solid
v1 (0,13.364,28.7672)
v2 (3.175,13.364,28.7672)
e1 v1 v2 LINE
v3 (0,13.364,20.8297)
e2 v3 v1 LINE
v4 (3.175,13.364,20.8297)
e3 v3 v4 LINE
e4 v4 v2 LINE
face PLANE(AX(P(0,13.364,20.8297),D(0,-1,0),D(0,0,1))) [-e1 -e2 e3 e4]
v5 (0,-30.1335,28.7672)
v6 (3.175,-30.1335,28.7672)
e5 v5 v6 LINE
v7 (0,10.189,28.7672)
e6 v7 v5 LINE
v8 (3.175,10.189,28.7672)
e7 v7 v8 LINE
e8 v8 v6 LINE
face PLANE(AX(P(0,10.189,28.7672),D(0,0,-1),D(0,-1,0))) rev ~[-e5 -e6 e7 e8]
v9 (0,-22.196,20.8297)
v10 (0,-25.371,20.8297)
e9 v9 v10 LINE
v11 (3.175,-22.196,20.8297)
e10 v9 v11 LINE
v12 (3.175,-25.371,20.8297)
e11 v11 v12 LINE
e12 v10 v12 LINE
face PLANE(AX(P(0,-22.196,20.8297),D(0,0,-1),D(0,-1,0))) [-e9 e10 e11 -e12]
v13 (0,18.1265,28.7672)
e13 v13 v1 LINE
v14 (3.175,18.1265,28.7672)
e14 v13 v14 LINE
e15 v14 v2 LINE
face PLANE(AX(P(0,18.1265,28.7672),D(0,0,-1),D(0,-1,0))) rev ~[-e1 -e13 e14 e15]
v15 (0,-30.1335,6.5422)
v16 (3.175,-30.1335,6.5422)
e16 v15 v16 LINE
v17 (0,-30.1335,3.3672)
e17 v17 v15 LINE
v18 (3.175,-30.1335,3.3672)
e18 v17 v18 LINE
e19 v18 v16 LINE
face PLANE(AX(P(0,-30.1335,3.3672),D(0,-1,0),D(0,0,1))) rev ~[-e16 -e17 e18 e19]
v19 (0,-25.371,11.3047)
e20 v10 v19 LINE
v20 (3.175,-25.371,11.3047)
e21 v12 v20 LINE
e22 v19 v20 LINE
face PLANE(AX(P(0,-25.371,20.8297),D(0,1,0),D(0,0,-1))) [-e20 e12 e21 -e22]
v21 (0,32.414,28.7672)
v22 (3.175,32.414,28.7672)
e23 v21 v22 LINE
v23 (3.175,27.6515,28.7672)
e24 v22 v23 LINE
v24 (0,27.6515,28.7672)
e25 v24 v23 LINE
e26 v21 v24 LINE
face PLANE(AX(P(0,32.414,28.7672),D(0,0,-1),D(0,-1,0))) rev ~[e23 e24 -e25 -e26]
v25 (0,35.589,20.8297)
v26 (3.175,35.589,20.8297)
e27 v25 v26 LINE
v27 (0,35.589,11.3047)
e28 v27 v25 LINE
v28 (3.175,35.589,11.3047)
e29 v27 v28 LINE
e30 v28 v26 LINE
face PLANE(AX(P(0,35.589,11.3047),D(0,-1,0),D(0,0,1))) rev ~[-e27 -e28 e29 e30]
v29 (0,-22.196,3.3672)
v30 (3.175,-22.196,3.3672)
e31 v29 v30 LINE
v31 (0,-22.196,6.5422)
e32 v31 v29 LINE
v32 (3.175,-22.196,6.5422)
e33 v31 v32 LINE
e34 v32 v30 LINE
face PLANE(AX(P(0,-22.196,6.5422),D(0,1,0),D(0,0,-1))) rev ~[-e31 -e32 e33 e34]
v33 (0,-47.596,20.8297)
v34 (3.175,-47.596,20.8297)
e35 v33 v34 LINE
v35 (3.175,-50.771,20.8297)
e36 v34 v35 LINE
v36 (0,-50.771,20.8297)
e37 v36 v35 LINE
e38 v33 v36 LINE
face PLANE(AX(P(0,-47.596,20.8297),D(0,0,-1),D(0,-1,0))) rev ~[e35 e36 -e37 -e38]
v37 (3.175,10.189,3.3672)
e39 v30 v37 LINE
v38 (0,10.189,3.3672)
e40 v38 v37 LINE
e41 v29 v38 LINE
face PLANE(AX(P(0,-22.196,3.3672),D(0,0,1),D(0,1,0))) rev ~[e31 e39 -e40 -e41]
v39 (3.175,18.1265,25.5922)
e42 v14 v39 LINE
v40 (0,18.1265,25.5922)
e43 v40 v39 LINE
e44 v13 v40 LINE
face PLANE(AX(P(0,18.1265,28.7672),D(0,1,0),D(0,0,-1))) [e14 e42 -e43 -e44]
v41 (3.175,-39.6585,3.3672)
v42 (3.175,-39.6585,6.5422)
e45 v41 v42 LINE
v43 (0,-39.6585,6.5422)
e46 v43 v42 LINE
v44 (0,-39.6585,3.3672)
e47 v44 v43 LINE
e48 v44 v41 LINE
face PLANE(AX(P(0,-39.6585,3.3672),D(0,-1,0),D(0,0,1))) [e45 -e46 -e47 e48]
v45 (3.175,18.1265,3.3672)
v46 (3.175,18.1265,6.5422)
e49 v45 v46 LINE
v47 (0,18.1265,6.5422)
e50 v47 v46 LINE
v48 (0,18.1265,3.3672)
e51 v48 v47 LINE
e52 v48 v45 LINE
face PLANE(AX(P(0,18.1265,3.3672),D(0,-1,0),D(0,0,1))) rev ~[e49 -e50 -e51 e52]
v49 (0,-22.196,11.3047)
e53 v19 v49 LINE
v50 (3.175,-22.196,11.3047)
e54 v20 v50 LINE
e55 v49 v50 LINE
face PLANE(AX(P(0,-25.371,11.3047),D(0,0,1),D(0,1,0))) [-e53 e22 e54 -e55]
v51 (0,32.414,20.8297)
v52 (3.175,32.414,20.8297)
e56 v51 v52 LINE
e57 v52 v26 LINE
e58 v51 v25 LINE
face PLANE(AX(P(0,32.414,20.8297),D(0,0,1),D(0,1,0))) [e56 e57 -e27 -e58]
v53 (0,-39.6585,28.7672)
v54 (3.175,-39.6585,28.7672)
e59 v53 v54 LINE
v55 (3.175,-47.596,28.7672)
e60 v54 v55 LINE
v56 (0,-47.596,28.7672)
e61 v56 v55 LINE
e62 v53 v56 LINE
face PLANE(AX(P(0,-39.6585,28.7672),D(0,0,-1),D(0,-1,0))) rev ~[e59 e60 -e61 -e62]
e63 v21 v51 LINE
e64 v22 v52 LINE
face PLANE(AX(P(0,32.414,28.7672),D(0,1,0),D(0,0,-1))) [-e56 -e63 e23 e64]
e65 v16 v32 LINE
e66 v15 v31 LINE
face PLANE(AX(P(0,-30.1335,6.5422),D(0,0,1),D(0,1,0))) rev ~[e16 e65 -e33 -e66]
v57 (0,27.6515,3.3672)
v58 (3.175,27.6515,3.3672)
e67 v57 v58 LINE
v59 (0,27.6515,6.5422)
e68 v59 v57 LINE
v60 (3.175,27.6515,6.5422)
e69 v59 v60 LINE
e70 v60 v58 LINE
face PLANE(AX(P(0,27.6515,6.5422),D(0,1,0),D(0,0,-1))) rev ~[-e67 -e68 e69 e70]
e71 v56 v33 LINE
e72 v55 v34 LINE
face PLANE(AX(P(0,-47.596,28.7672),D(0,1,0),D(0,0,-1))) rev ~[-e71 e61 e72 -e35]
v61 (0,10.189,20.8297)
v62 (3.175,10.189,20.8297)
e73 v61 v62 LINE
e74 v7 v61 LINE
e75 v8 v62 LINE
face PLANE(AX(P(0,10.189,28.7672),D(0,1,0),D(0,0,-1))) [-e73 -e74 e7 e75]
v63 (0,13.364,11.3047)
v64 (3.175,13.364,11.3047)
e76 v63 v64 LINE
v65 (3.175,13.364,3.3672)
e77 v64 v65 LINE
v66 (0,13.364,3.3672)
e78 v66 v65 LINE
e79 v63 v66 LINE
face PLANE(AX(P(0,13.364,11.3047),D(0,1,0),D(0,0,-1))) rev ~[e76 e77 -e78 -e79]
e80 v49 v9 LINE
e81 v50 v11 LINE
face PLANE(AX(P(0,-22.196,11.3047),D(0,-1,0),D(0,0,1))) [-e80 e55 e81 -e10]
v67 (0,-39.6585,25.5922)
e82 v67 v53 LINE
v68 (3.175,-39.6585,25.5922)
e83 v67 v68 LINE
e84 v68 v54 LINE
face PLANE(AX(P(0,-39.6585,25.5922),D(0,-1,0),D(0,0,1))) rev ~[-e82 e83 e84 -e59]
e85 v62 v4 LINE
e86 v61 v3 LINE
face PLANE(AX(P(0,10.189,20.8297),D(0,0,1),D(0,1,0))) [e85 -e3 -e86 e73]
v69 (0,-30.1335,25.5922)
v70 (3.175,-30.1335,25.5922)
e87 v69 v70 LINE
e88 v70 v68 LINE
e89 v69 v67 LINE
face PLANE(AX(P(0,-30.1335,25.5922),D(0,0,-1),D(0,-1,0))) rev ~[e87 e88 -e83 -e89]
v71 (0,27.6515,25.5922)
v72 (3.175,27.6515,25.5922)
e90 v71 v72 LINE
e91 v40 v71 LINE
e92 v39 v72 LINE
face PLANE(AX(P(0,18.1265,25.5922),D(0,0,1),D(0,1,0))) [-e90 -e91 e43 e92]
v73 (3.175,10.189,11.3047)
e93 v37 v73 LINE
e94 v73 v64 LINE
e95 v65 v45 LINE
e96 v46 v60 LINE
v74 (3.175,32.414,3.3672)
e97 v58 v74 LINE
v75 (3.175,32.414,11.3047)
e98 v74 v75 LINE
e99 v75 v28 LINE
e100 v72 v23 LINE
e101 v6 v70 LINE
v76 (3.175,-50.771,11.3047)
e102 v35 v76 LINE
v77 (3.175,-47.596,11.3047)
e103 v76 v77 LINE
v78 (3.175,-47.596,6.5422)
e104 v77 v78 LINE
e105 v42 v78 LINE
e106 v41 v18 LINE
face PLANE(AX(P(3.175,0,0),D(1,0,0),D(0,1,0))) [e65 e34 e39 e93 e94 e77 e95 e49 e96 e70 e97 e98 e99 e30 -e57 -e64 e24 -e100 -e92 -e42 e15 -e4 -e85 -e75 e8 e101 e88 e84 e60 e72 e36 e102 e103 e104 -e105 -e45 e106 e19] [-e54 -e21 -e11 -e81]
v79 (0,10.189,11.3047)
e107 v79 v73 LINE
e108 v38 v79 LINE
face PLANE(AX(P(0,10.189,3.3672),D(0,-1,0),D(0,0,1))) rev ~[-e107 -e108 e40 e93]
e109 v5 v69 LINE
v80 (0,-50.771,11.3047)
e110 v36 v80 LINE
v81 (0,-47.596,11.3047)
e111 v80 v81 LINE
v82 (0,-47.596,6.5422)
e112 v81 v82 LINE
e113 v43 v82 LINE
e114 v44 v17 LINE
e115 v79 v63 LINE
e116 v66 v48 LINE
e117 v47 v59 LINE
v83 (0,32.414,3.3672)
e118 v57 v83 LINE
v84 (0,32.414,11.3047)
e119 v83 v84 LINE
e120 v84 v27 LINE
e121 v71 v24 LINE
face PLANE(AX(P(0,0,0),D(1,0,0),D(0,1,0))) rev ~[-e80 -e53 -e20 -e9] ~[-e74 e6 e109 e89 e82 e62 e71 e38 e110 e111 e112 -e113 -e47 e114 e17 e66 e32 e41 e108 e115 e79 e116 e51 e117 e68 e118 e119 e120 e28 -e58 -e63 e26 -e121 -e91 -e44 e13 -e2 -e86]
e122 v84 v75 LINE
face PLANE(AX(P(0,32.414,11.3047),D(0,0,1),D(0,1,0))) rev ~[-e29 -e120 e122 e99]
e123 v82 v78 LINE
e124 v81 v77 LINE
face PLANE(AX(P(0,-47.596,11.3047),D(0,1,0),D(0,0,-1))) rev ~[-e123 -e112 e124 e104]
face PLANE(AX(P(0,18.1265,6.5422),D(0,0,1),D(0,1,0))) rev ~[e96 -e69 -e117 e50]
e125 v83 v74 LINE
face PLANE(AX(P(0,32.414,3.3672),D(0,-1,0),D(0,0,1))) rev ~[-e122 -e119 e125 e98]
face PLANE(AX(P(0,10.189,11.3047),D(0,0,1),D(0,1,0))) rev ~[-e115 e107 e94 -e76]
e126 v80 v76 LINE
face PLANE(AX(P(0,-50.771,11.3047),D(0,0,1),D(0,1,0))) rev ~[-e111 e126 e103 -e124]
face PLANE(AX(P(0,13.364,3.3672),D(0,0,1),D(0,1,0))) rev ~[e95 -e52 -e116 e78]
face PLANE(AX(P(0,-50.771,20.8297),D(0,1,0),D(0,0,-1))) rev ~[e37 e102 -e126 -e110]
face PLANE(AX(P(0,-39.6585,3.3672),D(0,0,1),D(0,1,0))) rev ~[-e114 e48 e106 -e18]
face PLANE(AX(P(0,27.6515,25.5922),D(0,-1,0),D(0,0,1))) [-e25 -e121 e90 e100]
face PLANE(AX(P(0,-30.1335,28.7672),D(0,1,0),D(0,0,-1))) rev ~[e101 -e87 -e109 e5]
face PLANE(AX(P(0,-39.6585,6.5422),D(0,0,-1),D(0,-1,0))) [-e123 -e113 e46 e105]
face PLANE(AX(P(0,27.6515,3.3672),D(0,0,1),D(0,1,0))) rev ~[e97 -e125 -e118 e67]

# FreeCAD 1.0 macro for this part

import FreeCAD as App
import Part
import Sketcher
Q = App.Units.Quantity

doc = App.newDocument("Part")
body = doc.addObject("PartDesign::Body", "Body")

# Sketch on YZ plane
sketch1 = body.newObject("Sketcher::SketchObject", "Sketch")
sketch1.AttachmentSupport = (doc.getObject("YZ_Plane"), [""])
sketch1.MapMode = "FlatFace"
sketch1.addGeometry([
    Part.LineSegment(App.Vector(32.4, 20.8, 0), App.Vector(32.4, 28.8, 0)),  # 0
    Part.LineSegment(App.Vector(32.4, 28.8, 0), App.Vector(27.7, 28.8, 0)),  # 1
    Part.LineSegment(App.Vector(27.7, 28.8, 0), App.Vector(27.7, 25.6, 0)),  # 2
    Part.LineSegment(App.Vector(27.7, 25.6, 0), App.Vector(18.1, 25.6, 0)),  # 3
    Part.LineSegment(App.Vector(18.1, 25.6, 0), App.Vector(18.1, 28.8, 0)),  # 4
    Part.LineSegment(App.Vector(18.1, 28.8, 0), App.Vector(13.4, 28.8, 0)),  # 5
    Part.LineSegment(App.Vector(13.4, 28.8, 0), App.Vector(13.4, 20.8, 0)),  # 6
    Part.LineSegment(App.Vector(13.4, 20.8, 0), App.Vector(10.2, 20.8, 0)),  # 7
    Part.LineSegment(App.Vector(10.2, 20.8, 0), App.Vector(10.2, 28.8, 0)),  # 8
    Part.LineSegment(App.Vector(10.2, 28.8, 0), App.Vector(-30.1, 28.8, 0)),  # 9
    Part.LineSegment(App.Vector(-30.1, 28.8, 0), App.Vector(-30.1, 25.6, 0)),  # 10
    Part.LineSegment(App.Vector(-30.1, 25.6, 0), App.Vector(-39.7, 25.6, 0)),  # 11
    Part.LineSegment(App.Vector(-39.7, 25.6, 0), App.Vector(-39.7, 28.8, 0)),  # 12
    Part.LineSegment(App.Vector(-39.7, 28.8, 0), App.Vector(-47.6, 28.8, 0)),  # 13
    Part.LineSegment(App.Vector(-47.6, 28.8, 0), App.Vector(-47.6, 20.8, 0)),  # 14
    Part.LineSegment(App.Vector(-47.6, 20.8, 0), App.Vector(-50.8, 20.8, 0)),  # 15
    Part.LineSegment(App.Vector(-50.8, 20.8, 0), App.Vector(-50.8, 11.3, 0)),  # 16
    Part.LineSegment(App.Vector(-50.8, 11.3, 0), App.Vector(-47.6, 11.3, 0)),  # 17
    Part.LineSegment(App.Vector(-47.6, 11.3, 0), App.Vector(-47.6, 6.5, 0)),  # 18
    Part.LineSegment(App.Vector(-47.6, 6.5, 0), App.Vector(-39.7, 6.5, 0)),  # 19
    Part.LineSegment(App.Vector(-39.7, 6.5, 0), App.Vector(-39.7, 3.4, 0)),  # 20
    Part.LineSegment(App.Vector(-39.7, 3.4, 0), App.Vector(-30.1, 3.4, 0)),  # 21
    Part.LineSegment(App.Vector(-30.1, 3.4, 0), App.Vector(-30.1, 6.5, 0)),  # 22
    Part.LineSegment(App.Vector(-30.1, 6.5, 0), App.Vector(-22.2, 6.5, 0)),  # 23
    Part.LineSegment(App.Vector(-22.2, 6.5, 0), App.Vector(-22.2, 3.4, 0)),  # 24
    Part.LineSegment(App.Vector(-22.2, 3.4, 0), App.Vector(10.2, 3.4, 0)),  # 25
    Part.LineSegment(App.Vector(10.2, 3.4, 0), App.Vector(10.2, 11.3, 0)),  # 26
    Part.LineSegment(App.Vector(10.2, 11.3, 0), App.Vector(13.4, 11.3, 0)),  # 27
    Part.LineSegment(App.Vector(13.4, 11.3, 0), App.Vector(13.4, 3.4, 0)),  # 28
    Part.LineSegment(App.Vector(13.4, 3.4, 0), App.Vector(18.1, 3.4, 0)),  # 29
    Part.LineSegment(App.Vector(18.1, 3.4, 0), App.Vector(18.1, 6.5, 0)),  # 30
    Part.LineSegment(App.Vector(18.1, 6.5, 0), App.Vector(27.7, 6.5, 0)),  # 31
    Part.LineSegment(App.Vector(27.7, 6.5, 0), App.Vector(27.7, 3.4, 0)),  # 32
    Part.LineSegment(App.Vector(27.7, 3.4, 0), App.Vector(32.4, 3.4, 0)),  # 33
    Part.LineSegment(App.Vector(32.4, 3.4, 0), App.Vector(32.4, 11.3, 0)),  # 34
    Part.LineSegment(App.Vector(32.4, 11.3, 0), App.Vector(35.6, 11.3, 0)),  # 35
    Part.LineSegment(App.Vector(35.6, 11.3, 0), App.Vector(35.6, 20.8, 0)),  # 36
    Part.LineSegment(App.Vector(35.6, 20.8, 0), App.Vector(32.4, 20.8, 0)),  # 37
    Part.LineSegment(App.Vector(-25.4, 20.8, 0), App.Vector(-22.2, 20.8, 0)),  # 38
    Part.LineSegment(App.Vector(-22.2, 20.8, 0), App.Vector(-22.2, 11.3, 0)),  # 39
    Part.LineSegment(App.Vector(-22.2, 11.3, 0), App.Vector(-25.4, 11.3, 0)),  # 40
    Part.LineSegment(App.Vector(-25.4, 11.3, 0), App.Vector(-25.4, 20.8, 0)),  # 41
], False)
sketch1.addConstraint([
    Sketcher.Constraint("Coincident", 0, 2, 1, 1),
    Sketcher.Constraint("Coincident", 1, 2, 2, 1),
    Sketcher.Constraint("Coincident", 2, 2, 3, 1),
    Sketcher.Constraint("Coincident", 3, 2, 4, 1),
    Sketcher.Constraint("Coincident", 4, 2, 5, 1),
    Sketcher.Constraint("Coincident", 5, 2, 6, 1),
    Sketcher.Constraint("Coincident", 6, 2, 7, 1),
    Sketcher.Constraint("Coincident", 7, 2, 8, 1),
    Sketcher.Constraint("Coincident", 8, 2, 9, 1),
    Sketcher.Constraint("Coincident", 9, 2, 10, 1),
    Sketcher.Constraint("Coincident", 10, 2, 11, 1),
    Sketcher.Constraint("Coincident", 11, 2, 12, 1),
    Sketcher.Constraint("Coincident", 12, 2, 13, 1),
    Sketcher.Constraint("Coincident", 13, 2, 14, 1),
    Sketcher.Constraint("Coincident", 14, 2, 15, 1),
    Sketcher.Constraint("Coincident", 15, 2, 16, 1),
    Sketcher.Constraint("Coincident", 16, 2, 17, 1),
    Sketcher.Constraint("Coincident", 17, 2, 18, 1),
    Sketcher.Constraint("Coincident", 18, 2, 19, 1),
    Sketcher.Constraint("Coincident", 19, 2, 20, 1),
    Sketcher.Constraint("Coincident", 20, 2, 21, 1),
    Sketcher.Constraint("Coincident", 21, 2, 22, 1),
    Sketcher.Constraint("Coincident", 22, 2, 23, 1),
    Sketcher.Constraint("Coincident", 23, 2, 24, 1),
    Sketcher.Constraint("Coincident", 24, 2, 25, 1),
    Sketcher.Constraint("Coincident", 25, 2, 26, 1),
    Sketcher.Constraint("Coincident", 26, 2, 27, 1),
    Sketcher.Constraint("Coincident", 27, 2, 28, 1),
    Sketcher.Constraint("Coincident", 28, 2, 29, 1),
    Sketcher.Constraint("Coincident", 29, 2, 30, 1),
    Sketcher.Constraint("Coincident", 30, 2, 31, 1),
    Sketcher.Constraint("Coincident", 31, 2, 32, 1),
    Sketcher.Constraint("Coincident", 32, 2, 33, 1),
    Sketcher.Constraint("Coincident", 33, 2, 34, 1),
    Sketcher.Constraint("Coincident", 34, 2, 35, 1),
    Sketcher.Constraint("Coincident", 35, 2, 36, 1),
    Sketcher.Constraint("Coincident", 36, 2, 37, 1),
    Sketcher.Constraint("Coincident", 37, 2, 0, 1),
    Sketcher.Constraint("Coincident", 38, 2, 39, 1),
    Sketcher.Constraint("Coincident", 39, 2, 40, 1),
    Sketcher.Constraint("Coincident", 40, 2, 41, 1),
    Sketcher.Constraint("Coincident", 41, 2, 38, 1),
    Sketcher.Constraint("Vertical", 0),
    Sketcher.Constraint("Horizontal", 1),
    Sketcher.Constraint("Vertical", 2),
    Sketcher.Constraint("Horizontal", 3),
    Sketcher.Constraint("Vertical", 4),
    Sketcher.Constraint("Horizontal", 5),
    Sketcher.Constraint("Vertical", 6),
    Sketcher.Constraint("Horizontal", 7),
    Sketcher.Constraint("Vertical", 8),
    Sketcher.Constraint("Horizontal", 9),
    Sketcher.Constraint("Vertical", 10),
    Sketcher.Constraint("Horizontal", 11),
    Sketcher.Constraint("Vertical", 12),
    Sketcher.Constraint("Horizontal", 13),
    Sketcher.Constraint("Vertical", 14),
    Sketcher.Constraint("Horizontal", 15),
    Sketcher.Constraint("Vertical", 16),
    Sketcher.Constraint("Horizontal", 17),
    Sketcher.Constraint("Vertical", 18),
    Sketcher.Constraint("Horizontal", 19),
    Sketcher.Constraint("Vertical", 20),
    Sketcher.Constraint("Horizontal", 21),
    Sketcher.Constraint("Vertical", 22),
    Sketcher.Constraint("Horizontal", 23),
    Sketcher.Constraint("Vertical", 24),
    Sketcher.Constraint("Horizontal", 25),
    Sketcher.Constraint("Vertical", 26),
    Sketcher.Constraint("Horizontal", 27),
    Sketcher.Constraint("Vertical", 28),
    Sketcher.Constraint("Horizontal", 29),
    Sketcher.Constraint("Vertical", 30),
    Sketcher.Constraint("Horizontal", 31),
    Sketcher.Constraint("Vertical", 32),
    Sketcher.Constraint("Horizontal", 33),
    Sketcher.Constraint("Vertical", 34),
    Sketcher.Constraint("Horizontal", 35),
    Sketcher.Constraint("Vertical", 36),
    Sketcher.Constraint("Horizontal", 37),
    Sketcher.Constraint("Horizontal", 38),
    Sketcher.Constraint("Vertical", 39),
    Sketcher.Constraint("Horizontal", 40),
    Sketcher.Constraint("Vertical", 41),
    Sketcher.Constraint("Horizontal", 1, 2, 4, 2),
    Sketcher.Constraint("Horizontal", 5, 2, 8, 2),
    Sketcher.Constraint("Horizontal", 3, 2, 10, 2),
    Sketcher.Constraint("Horizontal", 9, 2, 12, 2),
    Sketcher.Constraint("Horizontal", 7, 2, 14, 2),
    Sketcher.Constraint("Horizontal", 19, 2, 22, 2),
    Sketcher.Constraint("Horizontal", 21, 2, 24, 2),
    Sketcher.Constraint("Horizontal", 17, 2, 26, 2),
    Sketcher.Constraint("Horizontal", 25, 2, 28, 2),
    Sketcher.Constraint("Horizontal", 23, 2, 30, 2),
    Sketcher.Constraint("Horizontal", 29, 2, 32, 2),
    Sketcher.Constraint("Horizontal", 27, 2, 34, 2),
    Sketcher.Constraint("Horizontal", 15, 2, 36, 2),
    Sketcher.Constraint("Horizontal", 37, 2, 38, 2),
    Sketcher.Constraint("Horizontal", 35, 2, 39, 2),
    Sketcher.Constraint("Vertical", 14, 2, 17, 2),
    Sketcher.Constraint("Vertical", 12, 2, 19, 2),
    Sketcher.Constraint("Vertical", 10, 2, 21, 2),
    Sketcher.Constraint("Vertical", 8, 2, 25, 2),
    Sketcher.Constraint("Vertical", 6, 2, 27, 2),
    Sketcher.Constraint("Vertical", 4, 2, 29, 2),
    Sketcher.Constraint("Vertical", 2, 2, 31, 2),
    Sketcher.Constraint("Vertical", 0, 2, 33, 2),
    Sketcher.Constraint("Vertical", 24, 2, 38, 2),
    Sketcher.Constraint("Equal", 1, 5),
    Sketcher.Constraint("Equal", 3, 11),
    Sketcher.Constraint("Equal", 7, 15),
    Sketcher.Constraint("Equal", 19, 23),
    Sketcher.Constraint("Equal", 27, 35),
    Sketcher.Constraint("Equal", 37, 38),
    Sketcher.Constraint("Equal", 23, 0),
    Sketcher.Constraint("Equal", 40, 2),
    Sketcher.Constraint("Equal", 31, 16),
    Sketcher.Constraint("Equal", 33, 18),
    Sketcher.Constraint("Equal", 12, 20),
    Sketcher.Constraint("Equal", 14, 26),
    Sketcher.Constraint("DistanceY", 25, 2, 8, 2, Q("1 in")),
    Sketcher.Constraint("DistanceX", 3, 2, 3, 1, Q("0.375 in")),
    Sketcher.Constraint("DistanceX", 7, 2, 7, 1, Q("0.125 in")),
    Sketcher.Constraint("DistanceX", 9, 2, 4, 2, Q("1.9 in")),
    Sketcher.Constraint("DistanceX", -1, 1, 0, 2, 32.414),
    Sketcher.Constraint("DistanceY", -1, 1, 0, 2, 28.7672),
])
pad1 = body.newObject("PartDesign::Pad", "Pad")
pad1.Profile = sketch1
pad1.Length = Q("0.125 in")

doc.recompute()
